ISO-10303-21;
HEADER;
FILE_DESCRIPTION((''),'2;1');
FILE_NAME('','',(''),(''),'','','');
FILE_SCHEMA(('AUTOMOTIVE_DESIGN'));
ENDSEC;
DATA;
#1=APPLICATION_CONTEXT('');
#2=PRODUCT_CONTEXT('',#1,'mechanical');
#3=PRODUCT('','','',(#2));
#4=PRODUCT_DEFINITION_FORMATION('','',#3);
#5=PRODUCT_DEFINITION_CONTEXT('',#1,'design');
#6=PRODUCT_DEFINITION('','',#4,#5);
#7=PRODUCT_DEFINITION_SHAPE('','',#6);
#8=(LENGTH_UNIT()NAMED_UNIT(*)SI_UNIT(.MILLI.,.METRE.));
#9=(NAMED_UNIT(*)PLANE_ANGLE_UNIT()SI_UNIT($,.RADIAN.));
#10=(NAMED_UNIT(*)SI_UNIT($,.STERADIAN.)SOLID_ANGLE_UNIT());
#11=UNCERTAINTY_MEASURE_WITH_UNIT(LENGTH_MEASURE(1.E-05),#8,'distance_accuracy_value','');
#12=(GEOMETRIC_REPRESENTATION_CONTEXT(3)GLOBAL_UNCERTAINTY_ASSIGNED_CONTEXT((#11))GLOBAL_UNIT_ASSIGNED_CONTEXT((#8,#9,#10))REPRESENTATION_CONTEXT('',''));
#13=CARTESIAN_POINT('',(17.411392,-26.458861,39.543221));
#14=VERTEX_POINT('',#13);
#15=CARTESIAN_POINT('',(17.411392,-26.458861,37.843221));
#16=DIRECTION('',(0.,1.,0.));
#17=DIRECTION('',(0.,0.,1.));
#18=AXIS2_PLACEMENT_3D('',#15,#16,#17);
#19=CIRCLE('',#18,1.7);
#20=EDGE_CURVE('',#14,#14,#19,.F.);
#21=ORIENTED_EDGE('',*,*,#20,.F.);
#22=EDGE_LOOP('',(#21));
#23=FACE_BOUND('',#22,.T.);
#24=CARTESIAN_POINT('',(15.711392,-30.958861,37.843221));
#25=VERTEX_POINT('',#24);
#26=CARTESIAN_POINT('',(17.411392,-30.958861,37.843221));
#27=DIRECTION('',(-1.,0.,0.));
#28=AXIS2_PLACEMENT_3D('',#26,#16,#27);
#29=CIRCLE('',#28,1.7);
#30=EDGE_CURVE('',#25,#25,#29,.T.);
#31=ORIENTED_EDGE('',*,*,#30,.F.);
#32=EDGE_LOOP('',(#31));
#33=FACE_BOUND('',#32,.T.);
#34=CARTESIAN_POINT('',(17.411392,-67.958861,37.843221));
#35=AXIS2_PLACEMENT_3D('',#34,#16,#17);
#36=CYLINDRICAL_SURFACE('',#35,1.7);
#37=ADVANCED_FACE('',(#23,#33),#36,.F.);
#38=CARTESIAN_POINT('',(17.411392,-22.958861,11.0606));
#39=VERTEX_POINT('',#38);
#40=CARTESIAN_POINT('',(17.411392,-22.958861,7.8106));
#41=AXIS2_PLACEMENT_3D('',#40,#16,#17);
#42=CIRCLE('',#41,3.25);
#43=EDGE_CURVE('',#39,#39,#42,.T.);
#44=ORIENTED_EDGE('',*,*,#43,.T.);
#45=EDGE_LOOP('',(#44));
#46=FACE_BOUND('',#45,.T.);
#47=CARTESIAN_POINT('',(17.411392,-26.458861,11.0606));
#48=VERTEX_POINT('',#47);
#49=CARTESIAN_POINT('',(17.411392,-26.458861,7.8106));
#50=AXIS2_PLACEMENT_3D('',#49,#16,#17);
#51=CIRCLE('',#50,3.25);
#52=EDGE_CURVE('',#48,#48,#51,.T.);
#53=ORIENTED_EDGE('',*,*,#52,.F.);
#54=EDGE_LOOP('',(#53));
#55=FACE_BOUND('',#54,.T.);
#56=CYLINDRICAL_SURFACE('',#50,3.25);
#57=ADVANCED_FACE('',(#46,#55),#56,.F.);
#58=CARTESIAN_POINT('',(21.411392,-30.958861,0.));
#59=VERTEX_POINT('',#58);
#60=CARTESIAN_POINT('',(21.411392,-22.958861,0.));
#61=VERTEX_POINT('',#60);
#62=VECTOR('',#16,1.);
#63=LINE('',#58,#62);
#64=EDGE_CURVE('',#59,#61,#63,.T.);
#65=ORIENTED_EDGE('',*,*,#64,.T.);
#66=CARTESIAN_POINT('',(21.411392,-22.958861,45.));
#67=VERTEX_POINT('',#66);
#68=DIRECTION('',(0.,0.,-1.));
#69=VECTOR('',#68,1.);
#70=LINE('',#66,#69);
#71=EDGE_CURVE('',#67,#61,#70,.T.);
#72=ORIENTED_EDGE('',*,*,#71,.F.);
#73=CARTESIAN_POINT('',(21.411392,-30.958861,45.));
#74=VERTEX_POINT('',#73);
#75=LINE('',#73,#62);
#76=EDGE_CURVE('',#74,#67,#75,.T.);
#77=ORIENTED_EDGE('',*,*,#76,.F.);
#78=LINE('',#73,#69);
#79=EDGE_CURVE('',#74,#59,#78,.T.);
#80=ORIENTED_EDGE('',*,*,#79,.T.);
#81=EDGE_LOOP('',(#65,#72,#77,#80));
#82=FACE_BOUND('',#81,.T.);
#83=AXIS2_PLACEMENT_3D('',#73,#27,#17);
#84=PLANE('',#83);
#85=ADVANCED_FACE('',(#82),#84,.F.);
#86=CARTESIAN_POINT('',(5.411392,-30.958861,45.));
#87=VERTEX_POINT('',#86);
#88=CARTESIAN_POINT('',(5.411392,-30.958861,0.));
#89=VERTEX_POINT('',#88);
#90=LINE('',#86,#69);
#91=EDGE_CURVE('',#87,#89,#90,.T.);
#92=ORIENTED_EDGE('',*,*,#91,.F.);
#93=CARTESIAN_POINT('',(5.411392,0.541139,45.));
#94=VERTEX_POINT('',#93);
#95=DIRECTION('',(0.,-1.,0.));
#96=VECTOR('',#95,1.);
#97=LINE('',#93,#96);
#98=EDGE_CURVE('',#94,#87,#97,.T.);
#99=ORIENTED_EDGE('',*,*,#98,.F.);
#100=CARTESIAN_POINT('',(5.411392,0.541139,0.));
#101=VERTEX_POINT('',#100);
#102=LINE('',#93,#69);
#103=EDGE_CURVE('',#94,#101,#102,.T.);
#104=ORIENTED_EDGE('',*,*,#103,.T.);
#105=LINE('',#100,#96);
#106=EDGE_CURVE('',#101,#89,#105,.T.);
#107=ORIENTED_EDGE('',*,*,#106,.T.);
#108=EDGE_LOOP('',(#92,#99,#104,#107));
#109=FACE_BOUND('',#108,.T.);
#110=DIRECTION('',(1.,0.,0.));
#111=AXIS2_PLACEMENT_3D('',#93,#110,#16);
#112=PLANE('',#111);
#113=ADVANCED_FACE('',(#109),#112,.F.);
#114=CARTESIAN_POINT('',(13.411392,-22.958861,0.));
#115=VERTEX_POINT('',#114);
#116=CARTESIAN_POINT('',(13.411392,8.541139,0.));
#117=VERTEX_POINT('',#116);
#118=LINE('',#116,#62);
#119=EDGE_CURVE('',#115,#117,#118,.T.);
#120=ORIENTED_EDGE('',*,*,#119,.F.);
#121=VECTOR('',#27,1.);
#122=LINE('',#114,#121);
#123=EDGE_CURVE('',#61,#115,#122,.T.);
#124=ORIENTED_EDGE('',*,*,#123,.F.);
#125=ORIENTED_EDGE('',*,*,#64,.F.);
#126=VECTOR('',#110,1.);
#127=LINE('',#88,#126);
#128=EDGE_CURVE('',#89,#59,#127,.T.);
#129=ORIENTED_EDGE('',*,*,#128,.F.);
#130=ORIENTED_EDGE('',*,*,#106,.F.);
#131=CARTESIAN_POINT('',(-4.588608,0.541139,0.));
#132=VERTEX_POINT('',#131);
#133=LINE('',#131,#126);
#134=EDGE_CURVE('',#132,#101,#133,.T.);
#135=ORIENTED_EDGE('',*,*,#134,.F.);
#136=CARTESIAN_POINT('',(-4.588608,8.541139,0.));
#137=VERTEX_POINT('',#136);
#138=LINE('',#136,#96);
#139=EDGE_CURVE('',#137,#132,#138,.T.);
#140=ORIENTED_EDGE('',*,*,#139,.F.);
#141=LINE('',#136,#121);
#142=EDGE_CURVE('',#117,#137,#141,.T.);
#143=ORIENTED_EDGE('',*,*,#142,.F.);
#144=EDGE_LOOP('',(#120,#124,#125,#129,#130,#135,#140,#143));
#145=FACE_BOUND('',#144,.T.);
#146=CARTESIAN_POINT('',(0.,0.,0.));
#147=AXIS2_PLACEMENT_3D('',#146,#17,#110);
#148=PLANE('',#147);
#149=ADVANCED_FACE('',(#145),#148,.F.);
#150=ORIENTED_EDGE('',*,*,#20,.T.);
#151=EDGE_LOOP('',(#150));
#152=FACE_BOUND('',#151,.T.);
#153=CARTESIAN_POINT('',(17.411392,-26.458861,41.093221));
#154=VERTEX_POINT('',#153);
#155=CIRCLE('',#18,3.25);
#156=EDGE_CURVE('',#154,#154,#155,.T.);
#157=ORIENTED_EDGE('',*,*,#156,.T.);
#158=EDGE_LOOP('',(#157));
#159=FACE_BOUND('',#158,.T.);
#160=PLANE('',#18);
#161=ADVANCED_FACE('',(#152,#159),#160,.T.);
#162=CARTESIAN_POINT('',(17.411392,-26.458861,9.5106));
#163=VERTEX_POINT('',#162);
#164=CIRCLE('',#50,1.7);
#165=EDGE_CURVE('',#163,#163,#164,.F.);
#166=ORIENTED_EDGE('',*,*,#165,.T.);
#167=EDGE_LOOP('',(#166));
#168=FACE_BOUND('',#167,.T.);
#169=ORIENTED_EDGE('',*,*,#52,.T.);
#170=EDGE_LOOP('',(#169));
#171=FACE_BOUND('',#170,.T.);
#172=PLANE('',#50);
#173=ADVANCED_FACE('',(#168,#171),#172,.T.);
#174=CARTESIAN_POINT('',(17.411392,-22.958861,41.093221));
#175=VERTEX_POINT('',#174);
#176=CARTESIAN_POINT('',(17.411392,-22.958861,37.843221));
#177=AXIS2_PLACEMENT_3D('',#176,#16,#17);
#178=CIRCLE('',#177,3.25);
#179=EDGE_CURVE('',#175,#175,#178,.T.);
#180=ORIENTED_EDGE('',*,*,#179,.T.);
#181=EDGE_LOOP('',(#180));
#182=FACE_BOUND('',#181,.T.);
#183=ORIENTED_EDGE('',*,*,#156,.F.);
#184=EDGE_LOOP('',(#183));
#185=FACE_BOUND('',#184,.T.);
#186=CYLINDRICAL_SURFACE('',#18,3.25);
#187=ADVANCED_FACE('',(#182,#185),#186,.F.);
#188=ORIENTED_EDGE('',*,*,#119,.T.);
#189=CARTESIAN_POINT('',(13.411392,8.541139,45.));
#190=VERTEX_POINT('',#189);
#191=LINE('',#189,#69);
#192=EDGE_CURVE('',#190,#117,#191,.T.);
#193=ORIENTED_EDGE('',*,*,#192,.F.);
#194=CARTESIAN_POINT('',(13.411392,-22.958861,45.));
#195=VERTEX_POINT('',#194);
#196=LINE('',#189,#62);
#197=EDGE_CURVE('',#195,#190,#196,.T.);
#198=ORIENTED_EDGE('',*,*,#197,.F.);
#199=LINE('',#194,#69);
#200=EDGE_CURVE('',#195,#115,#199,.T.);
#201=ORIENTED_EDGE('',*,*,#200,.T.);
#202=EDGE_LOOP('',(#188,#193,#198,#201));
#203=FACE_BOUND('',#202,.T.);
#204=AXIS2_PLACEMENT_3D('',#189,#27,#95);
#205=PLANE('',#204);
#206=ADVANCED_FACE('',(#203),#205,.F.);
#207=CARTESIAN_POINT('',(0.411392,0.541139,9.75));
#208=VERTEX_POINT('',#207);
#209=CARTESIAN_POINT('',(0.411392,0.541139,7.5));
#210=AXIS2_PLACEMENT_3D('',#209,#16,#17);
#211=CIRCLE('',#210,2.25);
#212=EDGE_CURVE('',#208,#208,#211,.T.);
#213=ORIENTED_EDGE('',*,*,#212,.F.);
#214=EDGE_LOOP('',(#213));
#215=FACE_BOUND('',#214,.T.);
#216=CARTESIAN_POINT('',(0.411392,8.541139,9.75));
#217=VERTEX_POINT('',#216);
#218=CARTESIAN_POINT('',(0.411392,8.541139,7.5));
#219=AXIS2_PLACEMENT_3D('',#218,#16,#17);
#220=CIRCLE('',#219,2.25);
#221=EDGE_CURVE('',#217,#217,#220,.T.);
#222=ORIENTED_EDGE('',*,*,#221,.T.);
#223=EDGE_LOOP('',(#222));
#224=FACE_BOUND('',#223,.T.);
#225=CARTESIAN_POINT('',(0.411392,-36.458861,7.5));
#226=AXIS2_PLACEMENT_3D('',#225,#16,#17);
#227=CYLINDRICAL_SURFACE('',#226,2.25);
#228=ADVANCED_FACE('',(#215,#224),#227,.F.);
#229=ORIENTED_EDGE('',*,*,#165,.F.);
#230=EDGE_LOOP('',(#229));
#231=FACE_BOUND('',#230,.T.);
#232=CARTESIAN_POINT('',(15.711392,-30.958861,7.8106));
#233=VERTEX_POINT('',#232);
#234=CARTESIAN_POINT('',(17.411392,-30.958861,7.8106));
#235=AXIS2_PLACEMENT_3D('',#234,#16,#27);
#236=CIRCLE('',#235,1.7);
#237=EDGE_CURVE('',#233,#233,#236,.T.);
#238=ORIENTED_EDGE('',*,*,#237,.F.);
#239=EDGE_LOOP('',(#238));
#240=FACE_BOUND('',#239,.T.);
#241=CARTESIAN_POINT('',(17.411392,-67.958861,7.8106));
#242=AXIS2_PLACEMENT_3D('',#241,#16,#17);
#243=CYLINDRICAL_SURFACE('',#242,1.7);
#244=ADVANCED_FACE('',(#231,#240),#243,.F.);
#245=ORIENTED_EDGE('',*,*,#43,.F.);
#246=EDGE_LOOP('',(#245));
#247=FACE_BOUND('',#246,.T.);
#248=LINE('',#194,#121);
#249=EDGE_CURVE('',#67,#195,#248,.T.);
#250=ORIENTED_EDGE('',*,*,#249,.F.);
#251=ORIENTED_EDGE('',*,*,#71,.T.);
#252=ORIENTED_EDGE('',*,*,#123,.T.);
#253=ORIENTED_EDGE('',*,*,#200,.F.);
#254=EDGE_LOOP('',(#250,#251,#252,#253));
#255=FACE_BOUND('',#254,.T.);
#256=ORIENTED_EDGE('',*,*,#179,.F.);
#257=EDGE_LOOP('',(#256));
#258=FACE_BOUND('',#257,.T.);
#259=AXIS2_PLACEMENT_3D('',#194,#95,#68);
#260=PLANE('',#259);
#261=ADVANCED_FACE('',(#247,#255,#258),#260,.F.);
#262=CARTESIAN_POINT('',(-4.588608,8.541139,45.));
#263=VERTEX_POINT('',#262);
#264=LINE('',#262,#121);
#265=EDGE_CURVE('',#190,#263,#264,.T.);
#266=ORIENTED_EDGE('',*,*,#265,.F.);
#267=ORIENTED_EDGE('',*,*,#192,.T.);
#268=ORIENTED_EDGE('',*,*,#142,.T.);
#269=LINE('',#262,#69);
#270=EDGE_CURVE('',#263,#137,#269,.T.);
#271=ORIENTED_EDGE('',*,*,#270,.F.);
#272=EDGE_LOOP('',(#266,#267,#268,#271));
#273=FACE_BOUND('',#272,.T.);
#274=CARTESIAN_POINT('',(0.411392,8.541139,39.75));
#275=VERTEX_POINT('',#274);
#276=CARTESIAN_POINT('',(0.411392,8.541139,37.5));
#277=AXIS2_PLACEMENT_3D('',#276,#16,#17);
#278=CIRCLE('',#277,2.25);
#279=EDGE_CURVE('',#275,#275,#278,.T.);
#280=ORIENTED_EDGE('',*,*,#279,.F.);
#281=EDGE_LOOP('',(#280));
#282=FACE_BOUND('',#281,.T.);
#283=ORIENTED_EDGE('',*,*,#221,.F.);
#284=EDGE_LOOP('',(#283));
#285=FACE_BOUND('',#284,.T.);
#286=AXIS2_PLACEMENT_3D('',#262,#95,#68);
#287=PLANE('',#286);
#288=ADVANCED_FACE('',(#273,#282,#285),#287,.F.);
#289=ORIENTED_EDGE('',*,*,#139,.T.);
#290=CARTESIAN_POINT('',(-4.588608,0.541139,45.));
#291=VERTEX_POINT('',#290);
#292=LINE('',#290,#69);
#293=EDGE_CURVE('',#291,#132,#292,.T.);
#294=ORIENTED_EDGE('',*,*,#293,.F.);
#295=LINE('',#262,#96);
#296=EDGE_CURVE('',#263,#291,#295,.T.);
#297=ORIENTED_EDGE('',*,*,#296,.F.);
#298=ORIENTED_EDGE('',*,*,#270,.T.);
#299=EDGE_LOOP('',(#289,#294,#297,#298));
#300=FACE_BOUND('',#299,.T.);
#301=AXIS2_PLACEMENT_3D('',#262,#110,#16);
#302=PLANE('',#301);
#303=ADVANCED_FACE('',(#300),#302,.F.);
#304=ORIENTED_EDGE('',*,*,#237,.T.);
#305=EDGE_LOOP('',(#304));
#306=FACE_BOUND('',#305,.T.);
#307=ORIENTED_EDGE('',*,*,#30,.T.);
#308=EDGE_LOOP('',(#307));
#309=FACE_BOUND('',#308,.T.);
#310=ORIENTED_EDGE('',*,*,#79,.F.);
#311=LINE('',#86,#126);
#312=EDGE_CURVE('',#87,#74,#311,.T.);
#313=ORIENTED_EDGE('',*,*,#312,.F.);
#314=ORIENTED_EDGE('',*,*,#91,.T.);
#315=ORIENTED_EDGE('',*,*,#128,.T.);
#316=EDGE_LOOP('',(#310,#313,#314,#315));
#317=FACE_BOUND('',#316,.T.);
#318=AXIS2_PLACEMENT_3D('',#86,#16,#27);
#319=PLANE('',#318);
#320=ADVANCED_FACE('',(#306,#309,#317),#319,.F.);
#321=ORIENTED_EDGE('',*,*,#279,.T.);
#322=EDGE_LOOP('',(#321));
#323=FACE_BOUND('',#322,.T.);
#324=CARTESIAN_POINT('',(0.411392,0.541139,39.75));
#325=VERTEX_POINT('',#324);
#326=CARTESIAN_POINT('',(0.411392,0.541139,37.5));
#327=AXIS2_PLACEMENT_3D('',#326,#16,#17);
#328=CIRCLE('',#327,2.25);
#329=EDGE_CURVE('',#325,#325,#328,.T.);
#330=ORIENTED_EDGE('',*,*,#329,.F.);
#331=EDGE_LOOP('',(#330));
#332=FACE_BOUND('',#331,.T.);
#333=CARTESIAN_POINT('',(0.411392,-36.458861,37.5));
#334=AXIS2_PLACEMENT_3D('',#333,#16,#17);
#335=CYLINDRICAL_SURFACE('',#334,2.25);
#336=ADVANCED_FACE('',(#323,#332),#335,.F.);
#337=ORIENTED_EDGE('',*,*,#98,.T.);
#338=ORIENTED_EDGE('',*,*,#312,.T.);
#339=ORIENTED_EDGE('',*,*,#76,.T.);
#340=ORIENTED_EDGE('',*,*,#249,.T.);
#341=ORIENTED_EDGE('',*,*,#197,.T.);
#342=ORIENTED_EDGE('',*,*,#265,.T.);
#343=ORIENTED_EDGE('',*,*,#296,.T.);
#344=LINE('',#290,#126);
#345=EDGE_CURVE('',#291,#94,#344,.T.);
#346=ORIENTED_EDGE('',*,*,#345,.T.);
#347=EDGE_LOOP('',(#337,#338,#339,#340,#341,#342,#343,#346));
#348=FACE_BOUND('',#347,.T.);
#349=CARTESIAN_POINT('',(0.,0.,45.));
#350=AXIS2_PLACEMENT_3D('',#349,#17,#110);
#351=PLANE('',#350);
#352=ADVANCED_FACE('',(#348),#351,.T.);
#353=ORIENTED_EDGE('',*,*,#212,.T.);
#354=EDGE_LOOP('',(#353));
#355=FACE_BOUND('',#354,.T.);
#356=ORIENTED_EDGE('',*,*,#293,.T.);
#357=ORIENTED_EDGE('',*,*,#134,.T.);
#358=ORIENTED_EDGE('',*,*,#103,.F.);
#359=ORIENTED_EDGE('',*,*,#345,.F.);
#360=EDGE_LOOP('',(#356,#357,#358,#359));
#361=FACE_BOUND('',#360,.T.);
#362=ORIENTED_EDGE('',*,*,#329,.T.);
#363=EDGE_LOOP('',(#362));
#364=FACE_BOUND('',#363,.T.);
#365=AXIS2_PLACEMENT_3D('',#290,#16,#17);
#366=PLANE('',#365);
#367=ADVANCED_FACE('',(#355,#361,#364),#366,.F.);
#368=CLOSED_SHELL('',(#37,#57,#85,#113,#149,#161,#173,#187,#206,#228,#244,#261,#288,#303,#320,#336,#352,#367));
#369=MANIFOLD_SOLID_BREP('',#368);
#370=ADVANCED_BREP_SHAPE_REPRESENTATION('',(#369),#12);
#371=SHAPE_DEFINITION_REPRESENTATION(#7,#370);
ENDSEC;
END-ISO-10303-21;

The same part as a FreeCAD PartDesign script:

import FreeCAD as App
import Part
import Sketcher
Q = App.Units.Quantity

doc = App.newDocument("Part")
params = doc.addObject("Spreadsheet::Sheet", "Params")
for row, (alias, value) in enumerate([
    ("sketch1_width", "18 mm"),
    ("sketch1_width2", "10 mm"),
    ("sketch1_width3", "16 mm"),
    ("sketch1_height", "31.5 mm"),
    ("pad1_length", "45 mm"),
    ("sketch2_diameter", "4.5 mm"),
    ("pocket1_length", "45 mm"),
    ("sketch3_diameter", "3.4 mm"),
    ("pocket2_length", "45 mm"),
    ("sketch4_diameter", "6.5 mm"),
    ("pocket3_length", "3.5 mm"),
], start=1):
    params.set(f"A{row}", alias)
    params.set(f"B{row}", "=" + value)
    params.setAlias(f"B{row}", alias)

body = doc.addObject("PartDesign::Body", "Body")

sketch1 = body.newObject("Sketcher::SketchObject", "Sketch")
sketch1.AttachmentSupport = (doc.getObject("XY_Plane"), [""])
sketch1.MapMode = "FlatFace"
sketch1.addGeometry([
    Part.LineSegment(App.Vector(13, 9, 0), App.Vector(-5, 9, 0)),
    Part.LineSegment(App.Vector(-5, 9, 0), App.Vector(-5, 1, 0)),
    Part.LineSegment(App.Vector(-5, 1, 0), App.Vector(5, 1, 0)),
    Part.LineSegment(App.Vector(5, 1, 0), App.Vector(5, -31, 0)),
    Part.LineSegment(App.Vector(5, -31, 0), App.Vector(21, -31, 0)),
    Part.LineSegment(App.Vector(21, -31, 0), App.Vector(21, -23, 0)),
    Part.LineSegment(App.Vector(21, -23, 0), App.Vector(13, -23, 0)),
    Part.LineSegment(App.Vector(13, -23, 0), App.Vector(13, 9, 0)),
], False)
sketch1.addConstraint([
    Sketcher.Constraint("Coincident", 0, 2, 1, 1),
    Sketcher.Constraint("Coincident", 1, 2, 2, 1),
    Sketcher.Constraint("Coincident", 2, 2, 3, 1),
    Sketcher.Constraint("Coincident", 3, 2, 4, 1),
    Sketcher.Constraint("Coincident", 4, 2, 5, 1),
    Sketcher.Constraint("Coincident", 5, 2, 6, 1),
    Sketcher.Constraint("Coincident", 6, 2, 7, 1),
    Sketcher.Constraint("Coincident", 7, 2, 0, 1),
    Sketcher.Constraint("Horizontal", 0),
    Sketcher.Constraint("Vertical", 1),
    Sketcher.Constraint("Horizontal", 2),
    Sketcher.Constraint("Vertical", 3),
    Sketcher.Constraint("Horizontal", 4),
    Sketcher.Constraint("Vertical", 5),
    Sketcher.Constraint("Horizontal", 6),
    Sketcher.Constraint("Vertical", 7),
    Sketcher.Constraint("Equal", 6, 1),
    Sketcher.Constraint("Equal", 1, 5),
    Sketcher.Constraint("DistanceX", 0, 2, 0, 1, Q("18 mm")),
    Sketcher.Constraint("DistanceX", 2, 1, 2, 2, Q("10 mm")),
    Sketcher.Constraint("DistanceX", 4, 1, 4, 2, Q("16 mm")),
    Sketcher.Constraint("DistanceY", 3, 2, 3, 1, Q("31.5 mm")),
    Sketcher.Constraint("DistanceY", -1, 1, 0, 2, Q("8.541139 mm")),
    Sketcher.Constraint("DistanceX", 0, 2, -1, 1, Q("4.588608 mm")),
])
sketch1.setExpression("Constraints[18]", "Params.sketch1_width")
sketch1.setExpression("Constraints[19]", "Params.sketch1_width2")
sketch1.setExpression("Constraints[20]", "Params.sketch1_width3")
sketch1.setExpression("Constraints[21]", "Params.sketch1_height")
pad1 = body.newObject("PartDesign::Pad", "Pad")
pad1.Profile = sketch1
pad1.setExpression("Length", "Params.pad1_length")

sketch2 = body.newObject("Sketcher::SketchObject", "Sketch001")
sketch2.AttachmentSupport = (doc.getObject("XZ_Plane"), [""])
sketch2.MapMode = "FlatFace"
sketch2.AttachmentOffset = App.Placement(App.Vector(0, 0, -8.541139), App.Rotation())
sketch2.addGeometry([
    Part.Circle(App.Vector(0.4, 7.5, 0), App.Vector(0, 0, 1), 2.2),
    Part.Circle(App.Vector(0.4, 37.5, 0), App.Vector(0, 0, 1), 2.2),
], False)
sketch2.addConstraint([
    Sketcher.Constraint("Equal", 0, 1),
    Sketcher.Constraint("Vertical", 0, 3, 1, 3),
    Sketcher.Constraint("Diameter", 0, Q("4.5 mm")),
    Sketcher.Constraint("DistanceY", 0, 3, 1, 3, Q("30 mm")),
    Sketcher.Constraint("DistanceY", -1, 1, 0, 3, Q("7.5 mm")),
    Sketcher.Constraint("DistanceX", -1, 1, 0, 3, Q("0.411392 mm")),
])
sketch2.setExpression("Constraints[2]", "Params.sketch2_diameter")
pocket1 = body.newObject("PartDesign::Pocket", "Pocket")
pocket1.Profile = sketch2
pocket1.setExpression("Length", "Params.pocket1_length")
pocket1.Reversed = True

sketch3 = body.newObject("Sketcher::SketchObject", "Sketch002")
sketch3.AttachmentSupport = (doc.getObject("XZ_Plane"), [""])
sketch3.MapMode = "FlatFace"
sketch3.AttachmentOffset = App.Placement(App.Vector(0, 0, 22.958861), App.Rotation())
sketch3.addGeometry([
    Part.Circle(App.Vector(17.4, 7.8, 0), App.Vector(0, 0, 1), 1.7),
    Part.Circle(App.Vector(17.4, 37.8, 0), App.Vector(0, 0, 1), 1.7),
], False)
sketch3.addConstraint([
    Sketcher.Constraint("Equal", 0, 1),
    Sketcher.Constraint("Vertical", 0, 3, 1, 3),
    Sketcher.Constraint("Diameter", 0, Q("3.4 mm")),
    Sketcher.Constraint("DistanceY", -1, 1, 0, 3, Q("7.8106 mm")),
    Sketcher.Constraint("DistanceY", -1, 1, 1, 3, Q("37.843221 mm")),
    Sketcher.Constraint("DistanceX", -1, 1, 0, 3, Q("17.411392 mm")),
])
sketch3.setExpression("Constraints[2]", "Params.sketch3_diameter")
pocket2 = body.newObject("PartDesign::Pocket", "Pocket001")
pocket2.Profile = sketch3
pocket2.setExpression("Length", "Params.pocket2_length")
pocket2.Reversed = True

sketch4 = body.newObject("Sketcher::SketchObject", "Sketch003")
sketch4.AttachmentSupport = (doc.getObject("XZ_Plane"), [""])
sketch4.MapMode = "FlatFace"
sketch4.AttachmentOffset = App.Placement(App.Vector(0, 0, 22.958861), App.Rotation())
sketch4.addGeometry([
    Part.Circle(App.Vector(17.4, 7.8, 0), App.Vector(0, 0, 1), 3.2),
    Part.Circle(App.Vector(17.4, 37.8, 0), App.Vector(0, 0, 1), 3.2),
], False)
sketch4.addConstraint([
    Sketcher.Constraint("Equal", 0, 1),
    Sketcher.Constraint("Vertical", 0, 3, 1, 3),
    Sketcher.Constraint("Diameter", 0, Q("6.5 mm")),
    Sketcher.Constraint("DistanceY", -1, 1, 0, 3, Q("7.8106 mm")),
    Sketcher.Constraint("DistanceY", -1, 1, 1, 3, Q("37.843221 mm")),
    Sketcher.Constraint("DistanceX", -1, 1, 0, 3, Q("17.411392 mm")),
])
sketch4.setExpression("Constraints[2]", "Params.sketch4_diameter")
pocket3 = body.newObject("PartDesign::Pocket", "Pocket002")
pocket3.Profile = sketch4
pocket3.setExpression("Length", "Params.pocket3_length")
pocket3.Reversed = True

doc.recompute()
